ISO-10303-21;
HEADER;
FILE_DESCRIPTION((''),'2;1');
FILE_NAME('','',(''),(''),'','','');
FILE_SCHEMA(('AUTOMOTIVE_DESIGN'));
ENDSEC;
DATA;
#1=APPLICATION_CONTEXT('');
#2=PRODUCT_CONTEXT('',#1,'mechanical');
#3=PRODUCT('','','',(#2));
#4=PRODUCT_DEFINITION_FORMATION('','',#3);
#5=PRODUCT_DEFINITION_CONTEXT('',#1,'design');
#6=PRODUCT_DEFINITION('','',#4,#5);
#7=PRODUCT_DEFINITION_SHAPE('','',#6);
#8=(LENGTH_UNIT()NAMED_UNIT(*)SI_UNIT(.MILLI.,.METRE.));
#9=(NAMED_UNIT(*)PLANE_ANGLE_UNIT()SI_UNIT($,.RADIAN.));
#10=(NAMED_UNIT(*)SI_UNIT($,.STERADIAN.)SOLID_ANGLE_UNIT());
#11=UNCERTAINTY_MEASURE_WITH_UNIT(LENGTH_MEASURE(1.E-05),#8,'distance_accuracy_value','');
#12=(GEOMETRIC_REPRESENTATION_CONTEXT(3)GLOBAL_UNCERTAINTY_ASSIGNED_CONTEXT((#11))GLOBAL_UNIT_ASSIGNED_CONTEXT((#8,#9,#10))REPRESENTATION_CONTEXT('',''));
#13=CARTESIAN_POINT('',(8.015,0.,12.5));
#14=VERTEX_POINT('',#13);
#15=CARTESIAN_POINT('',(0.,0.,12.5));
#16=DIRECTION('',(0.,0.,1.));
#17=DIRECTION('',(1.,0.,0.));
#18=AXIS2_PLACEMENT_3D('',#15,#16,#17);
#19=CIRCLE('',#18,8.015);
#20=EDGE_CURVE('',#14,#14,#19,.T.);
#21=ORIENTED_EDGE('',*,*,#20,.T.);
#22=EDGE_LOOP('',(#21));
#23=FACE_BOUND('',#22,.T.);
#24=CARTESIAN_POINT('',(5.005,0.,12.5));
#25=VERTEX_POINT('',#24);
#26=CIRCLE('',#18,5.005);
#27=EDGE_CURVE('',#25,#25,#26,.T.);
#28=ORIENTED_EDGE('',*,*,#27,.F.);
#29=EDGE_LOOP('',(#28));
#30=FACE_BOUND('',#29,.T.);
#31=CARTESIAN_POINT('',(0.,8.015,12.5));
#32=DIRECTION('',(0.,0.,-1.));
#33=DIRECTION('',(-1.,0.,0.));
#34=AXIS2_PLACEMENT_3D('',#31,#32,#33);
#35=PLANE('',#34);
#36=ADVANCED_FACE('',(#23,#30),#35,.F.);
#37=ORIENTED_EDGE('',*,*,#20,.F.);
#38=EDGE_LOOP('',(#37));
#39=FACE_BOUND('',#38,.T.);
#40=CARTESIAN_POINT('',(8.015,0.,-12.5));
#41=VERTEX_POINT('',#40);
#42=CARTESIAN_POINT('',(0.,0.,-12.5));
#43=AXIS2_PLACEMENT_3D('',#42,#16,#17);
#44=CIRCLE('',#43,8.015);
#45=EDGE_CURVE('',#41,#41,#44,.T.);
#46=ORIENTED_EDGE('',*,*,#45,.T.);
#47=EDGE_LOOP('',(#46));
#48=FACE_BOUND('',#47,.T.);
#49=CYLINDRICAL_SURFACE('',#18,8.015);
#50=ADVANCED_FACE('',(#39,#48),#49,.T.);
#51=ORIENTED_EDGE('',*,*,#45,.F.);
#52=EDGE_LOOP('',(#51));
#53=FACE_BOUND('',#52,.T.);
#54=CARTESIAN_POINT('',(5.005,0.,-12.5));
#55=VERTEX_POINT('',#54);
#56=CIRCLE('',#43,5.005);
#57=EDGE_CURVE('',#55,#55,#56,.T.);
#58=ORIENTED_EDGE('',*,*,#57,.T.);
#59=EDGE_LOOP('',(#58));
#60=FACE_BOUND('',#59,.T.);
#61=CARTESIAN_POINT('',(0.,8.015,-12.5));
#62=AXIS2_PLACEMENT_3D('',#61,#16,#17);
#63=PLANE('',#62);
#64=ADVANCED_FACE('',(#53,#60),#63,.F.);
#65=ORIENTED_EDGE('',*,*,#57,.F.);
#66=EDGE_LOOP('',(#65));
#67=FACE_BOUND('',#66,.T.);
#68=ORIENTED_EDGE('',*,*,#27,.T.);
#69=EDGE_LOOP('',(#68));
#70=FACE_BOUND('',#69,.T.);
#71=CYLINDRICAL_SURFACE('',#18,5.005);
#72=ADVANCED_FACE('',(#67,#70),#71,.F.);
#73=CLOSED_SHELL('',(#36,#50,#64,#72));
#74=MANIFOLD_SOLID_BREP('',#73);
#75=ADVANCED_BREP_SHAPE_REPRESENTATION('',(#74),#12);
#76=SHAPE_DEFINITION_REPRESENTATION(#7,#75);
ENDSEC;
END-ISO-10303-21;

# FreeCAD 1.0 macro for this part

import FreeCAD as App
import Part
import Sketcher


def add_polygon(sketch, points):
    """Adds a closed chain of lines whose ends are joined by coincident constraints."""
    first, n = sketch.GeometryCount, len(points)
    for a, b in zip(points, points[1:] + points[:1]):
        sketch.addGeometry(Part.LineSegment(App.Vector(*a, 0), App.Vector(*b, 0)), False)
    for i in range(n):
        sketch.addConstraint(Sketcher.Constraint("Coincident", first + i, 2, first + (i + 1) % n, 1))

doc = App.newDocument("Part")
body = doc.addObject("PartDesign::Body", "Body")

sketch1 = doc.addObject("Sketcher::SketchObject", "Sketch")
body.addObject(sketch1)
sketch1.AttachmentSupport = (doc.YZ_Plane, [""])
sketch1.MapMode = "FlatFace"
add_polygon(sketch1, [(8.015, 12.5), (5.005, 12.5), (5.005, -12.5), (8.015, -12.5)])
sketch1.addConstraint([
    Sketcher.Constraint("Horizontal", 0),
    Sketcher.Constraint("Vertical", 1),
    Sketcher.Constraint("Horizontal", 2),
    Sketcher.Constraint("Vertical", 3),
    Sketcher.Constraint("DistanceY", 1, 2, 1, 1, 25.0),
    Sketcher.Constraint("DistanceX", 0, 2, 0, 1, 3.01),
    Sketcher.Constraint("DistanceY", -1, 1, 0, 2, 12.5),
    Sketcher.Constraint("DistanceX", -1, 1, 0, 2, 5.005),
])
revolution = doc.addObject("PartDesign::Revolution", "Revolution")
body.addObject(revolution)
revolution.Profile = sketch1
revolution.ReferenceAxis = (sketch1, ["V_Axis"])
revolution.Angle = 360

doc.recompute()
